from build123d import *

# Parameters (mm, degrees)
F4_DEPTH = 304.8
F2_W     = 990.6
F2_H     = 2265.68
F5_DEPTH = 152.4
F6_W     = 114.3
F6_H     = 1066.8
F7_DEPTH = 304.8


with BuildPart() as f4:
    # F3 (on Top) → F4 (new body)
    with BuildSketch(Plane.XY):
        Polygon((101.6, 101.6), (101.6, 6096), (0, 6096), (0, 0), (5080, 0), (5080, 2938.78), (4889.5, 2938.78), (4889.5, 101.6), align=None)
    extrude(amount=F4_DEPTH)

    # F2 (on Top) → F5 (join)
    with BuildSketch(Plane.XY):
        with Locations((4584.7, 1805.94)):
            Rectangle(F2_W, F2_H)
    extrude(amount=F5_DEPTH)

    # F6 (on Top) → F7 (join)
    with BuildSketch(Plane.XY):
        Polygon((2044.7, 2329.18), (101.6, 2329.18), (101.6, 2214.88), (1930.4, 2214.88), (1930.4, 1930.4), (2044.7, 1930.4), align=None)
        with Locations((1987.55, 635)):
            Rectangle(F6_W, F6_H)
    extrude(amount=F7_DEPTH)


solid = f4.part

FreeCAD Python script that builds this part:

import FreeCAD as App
import Part
import Sketcher
Q = App.Units.Quantity

doc = App.newDocument("Part")
params = doc.addObject("Spreadsheet::Sheet", "Params")
for row, (alias, value) in enumerate([
    ("sketch1_width", "4 in"),
    ("sketch1_width2", "200 in"),
    ("sketch1_height", "236 in"),
    ("sketch1_height2", "240 in"),
    ("sketch1_width3", "7.5 in"),
    ("pad1_length", "12 in"),
    ("sketch2_width", "39 in"),
    ("sketch2_height", "89.2 in"),
    ("pad2_length", "6 in"),
    ("sketch3_width", "72 in"),
    ("sketch3_height", "42 in"),
    ("sketch3_width2", "76.5 in"),
    ("sketch3_height2", "11.2 in"),
    ("pad3_length", "12 in"),
], start=1):
    params.set(f"A{row}", alias)
    params.set(f"B{row}", "=" + value)
    params.setAlias(f"B{row}", alias)

body = doc.addObject("PartDesign::Body", "Body")

sketch1 = body.newObject("Sketcher::SketchObject", "Sketch")
sketch1.AttachmentSupport = (doc.getObject("XY_Plane"), [""])
sketch1.MapMode = "FlatFace"
sketch1.addGeometry(Part.LineSegment(App.Vector(102, 102, 0), App.Vector(102, 6096, 0)), False)
sketch1.addGeometry(Part.LineSegment(App.Vector(102, 6096, 0), App.Vector(0, 6096, 0)), False)
sketch1.addGeometry(Part.LineSegment(App.Vector(0, 6096, 0), App.Vector(0, 0, 0)), False)
sketch1.addGeometry(Part.LineSegment(App.Vector(0, 0, 0), App.Vector(5080, 0, 0)), False)
sketch1.addGeometry(Part.LineSegment(App.Vector(5080, 0, 0), App.Vector(5080, 2939, 0)), False)
sketch1.addGeometry(Part.LineSegment(App.Vector(5080, 2939, 0), App.Vector(4890, 2939, 0)), False)
sketch1.addGeometry(Part.LineSegment(App.Vector(4890, 2939, 0), App.Vector(4890, 102, 0)), False)
sketch1.addGeometry(Part.LineSegment(App.Vector(4890, 102, 0), App.Vector(102, 102, 0)), False)
sketch1.addConstraint(Sketcher.Constraint("Coincident", 0, 2, 1, 1))
sketch1.addConstraint(Sketcher.Constraint("Coincident", 1, 2, 2, 1))
sketch1.addConstraint(Sketcher.Constraint("Coincident", 2, 2, 3, 1))
sketch1.addConstraint(Sketcher.Constraint("Coincident", 3, 2, 4, 1))
sketch1.addConstraint(Sketcher.Constraint("Coincident", 4, 2, 5, 1))
sketch1.addConstraint(Sketcher.Constraint("Coincident", 5, 2, 6, 1))
sketch1.addConstraint(Sketcher.Constraint("Coincident", 6, 2, 7, 1))
sketch1.addConstraint(Sketcher.Constraint("Coincident", 7, 2, 0, 1))
sketch1.addConstraint(Sketcher.Constraint("Vertical", 0))
sketch1.addConstraint(Sketcher.Constraint("Horizontal", 1))
sketch1.addConstraint(Sketcher.Constraint("Vertical", 2))
sketch1.addConstraint(Sketcher.Constraint("Horizontal", 3))
sketch1.addConstraint(Sketcher.Constraint("Vertical", 4))
sketch1.addConstraint(Sketcher.Constraint("Horizontal", 5))
sketch1.addConstraint(Sketcher.Constraint("Vertical", 6))
sketch1.addConstraint(Sketcher.Constraint("Horizontal", 7))
sketch1.addConstraint(Sketcher.Constraint("Coincident", 2, 2, -1, 1))
sketch1.addConstraint(Sketcher.Constraint("DistanceX", 1, 2, 1, 1, Q("4 in")))
sketch1.addConstraint(Sketcher.Constraint("DistanceX", 3, 1, 3, 2, Q("200 in")))
sketch1.addConstraint(Sketcher.Constraint("DistanceY", 0, 1, 0, 2, Q("236 in")))
sketch1.addConstraint(Sketcher.Constraint("DistanceY", 2, 2, 2, 1, Q("240 in")))
sketch1.addConstraint(Sketcher.Constraint("DistanceX", 5, 2, 5, 1, Q("7.5 in")))
sketch1.addConstraint(Sketcher.Constraint("DistanceY", 4, 1, 4, 2, Q("115.7 in")))
sketch1.setExpression("Constraints[17]", "Params.sketch1_width")
sketch1.setExpression("Constraints[18]", "Params.sketch1_width2")
sketch1.setExpression("Constraints[19]", "Params.sketch1_height")
sketch1.setExpression("Constraints[20]", "Params.sketch1_height2")
sketch1.setExpression("Constraints[21]", "Params.sketch1_width3")
pad1 = body.newObject("PartDesign::Pad", "Pad")
pad1.Profile = sketch1
pad1.setExpression("Length", "Params.pad1_length")

sketch2 = body.newObject("Sketcher::SketchObject", "Sketch001")
sketch2.AttachmentSupport = (doc.getObject("XY_Plane"), [""])
sketch2.MapMode = "FlatFace"
sketch2.addGeometry(Part.LineSegment(App.Vector(4089, 2939, 0), App.Vector(4089, 673, 0)), False)
sketch2.addGeometry(Part.LineSegment(App.Vector(4089, 673, 0), App.Vector(5080, 673, 0)), False)
sketch2.addGeometry(Part.LineSegment(App.Vector(5080, 673, 0), App.Vector(5080, 2939, 0)), False)
sketch2.addGeometry(Part.LineSegment(App.Vector(5080, 2939, 0), App.Vector(4089, 2939, 0)), False)
sketch2.addConstraint(Sketcher.Constraint("Coincident", 0, 2, 1, 1))
sketch2.addConstraint(Sketcher.Constraint("Coincident", 1, 2, 2, 1))
sketch2.addConstraint(Sketcher.Constraint("Coincident", 2, 2, 3, 1))
sketch2.addConstraint(Sketcher.Constraint("Coincident", 3, 2, 0, 1))
sketch2.addConstraint(Sketcher.Constraint("Vertical", 0))
sketch2.addConstraint(Sketcher.Constraint("Horizontal", 1))
sketch2.addConstraint(Sketcher.Constraint("Vertical", 2))
sketch2.addConstraint(Sketcher.Constraint("Horizontal", 3))
sketch2.addConstraint(Sketcher.Constraint("DistanceX", 1, 1, 1, 2, Q("39 in")))
sketch2.addConstraint(Sketcher.Constraint("DistanceY", 0, 2, 0, 1, Q("89.2 in")))
sketch2.addConstraint(Sketcher.Constraint("DistanceX", -1, 1, 0, 2, Q("161 in")))
sketch2.addConstraint(Sketcher.Constraint("DistanceY", -1, 1, 0, 2, Q("26.5 in")))
sketch2.setExpression("Constraints[8]", "Params.sketch2_width")
sketch2.setExpression("Constraints[9]", "Params.sketch2_height")
pad2 = body.newObject("PartDesign::Pad", "Pad001")
pad2.Profile = sketch2
pad2.setExpression("Length", "Params.pad2_length")

sketch3 = body.newObject("Sketcher::SketchObject", "Sketch002")
sketch3.AttachmentSupport = (doc.getObject("XY_Plane"), [""])
sketch3.MapMode = "FlatFace"
sketch3.addGeometry(Part.LineSegment(App.Vector(2045, 2329, 0), App.Vector(102, 2329, 0)), False)
sketch3.addGeometry(Part.LineSegment(App.Vector(102, 2329, 0), App.Vector(102, 2215, 0)), False)
sketch3.addGeometry(Part.LineSegment(App.Vector(102, 2215, 0), App.Vector(1930, 2215, 0)), False)
sketch3.addGeometry(Part.LineSegment(App.Vector(1930, 2215, 0), App.Vector(1930, 1930, 0)), False)
sketch3.addGeometry(Part.LineSegment(App.Vector(1930, 1930, 0), App.Vector(2045, 1930, 0)), False)
sketch3.addGeometry(Part.LineSegment(App.Vector(2045, 1930, 0), App.Vector(2045, 2329, 0)), False)
sketch3.addGeometry(Part.LineSegment(App.Vector(1930, 1168, 0), App.Vector(1930, 102, 0)), False)
sketch3.addGeometry(Part.LineSegment(App.Vector(1930, 102, 0), App.Vector(2045, 102, 0)), False)
sketch3.addGeometry(Part.LineSegment(App.Vector(2045, 102, 0), App.Vector(2045, 1168, 0)), False)
sketch3.addGeometry(Part.LineSegment(App.Vector(2045, 1168, 0), App.Vector(1930, 1168, 0)), False)
sketch3.addConstraint(Sketcher.Constraint("Coincident", 0, 2, 1, 1))
sketch3.addConstraint(Sketcher.Constraint("Coincident", 1, 2, 2, 1))
sketch3.addConstraint(Sketcher.Constraint("Coincident", 2, 2, 3, 1))
sketch3.addConstraint(Sketcher.Constraint("Coincident", 3, 2, 4, 1))
sketch3.addConstraint(Sketcher.Constraint("Coincident", 4, 2, 5, 1))
sketch3.addConstraint(Sketcher.Constraint("Coincident", 5, 2, 0, 1))
sketch3.addConstraint(Sketcher.Constraint("Coincident", 6, 2, 7, 1))
sketch3.addConstraint(Sketcher.Constraint("Coincident", 7, 2, 8, 1))
sketch3.addConstraint(Sketcher.Constraint("Coincident", 8, 2, 9, 1))
sketch3.addConstraint(Sketcher.Constraint("Coincident", 9, 2, 6, 1))
sketch3.addConstraint(Sketcher.Constraint("Horizontal", 0))
sketch3.addConstraint(Sketcher.Constraint("Vertical", 1))
sketch3.addConstraint(Sketcher.Constraint("Horizontal", 2))
sketch3.addConstraint(Sketcher.Constraint("Vertical", 3))
sketch3.addConstraint(Sketcher.Constraint("Horizontal", 4))
sketch3.addConstraint(Sketcher.Constraint("Vertical", 5))
sketch3.addConstraint(Sketcher.Constraint("Vertical", 6))
sketch3.addConstraint(Sketcher.Constraint("Horizontal", 7))
sketch3.addConstraint(Sketcher.Constraint("Vertical", 8))
sketch3.addConstraint(Sketcher.Constraint("Horizontal", 9))
sketch3.addConstraint(Sketcher.Constraint("Vertical", 3, 2, 6, 2))
sketch3.addConstraint(Sketcher.Constraint("Vertical", 5, 2, 7, 2))
sketch3.addConstraint(Sketcher.Constraint("Equal", 9, 1))
sketch3.addConstraint(Sketcher.Constraint("DistanceX", 2, 1, 2, 2, Q("72 in")))
sketch3.addConstraint(Sketcher.Constraint("DistanceY", 6, 2, 6, 1, Q("42 in")))
sketch3.addConstraint(Sketcher.Constraint("DistanceX", 0, 2, 0, 1, Q("76.5 in")))
sketch3.addConstraint(Sketcher.Constraint("DistanceY", 3, 2, 3, 1, Q("11.2 in")))
sketch3.addConstraint(Sketcher.Constraint("DistanceX", -1, 1, 0, 2, Q("4 in")))
sketch3.addConstraint(Sketcher.Constraint("DistanceY", -1, 1, 3, 2, Q("76 in")))
sketch3.addConstraint(Sketcher.Constraint("DistanceY", -1, 1, 6, 2, Q("4 in")))
sketch3.setExpression("Constraints[23]", "Params.sketch3_width")
sketch3.setExpression("Constraints[24]", "Params.sketch3_height")
sketch3.setExpression("Constraints[25]", "Params.sketch3_width2")
sketch3.setExpression("Constraints[26]", "Params.sketch3_height2")
pad3 = body.newObject("PartDesign::Pad", "Pad002")
pad3.Profile = sketch3
pad3.setExpression("Length", "Params.pad3_length")

doc.recompute()
